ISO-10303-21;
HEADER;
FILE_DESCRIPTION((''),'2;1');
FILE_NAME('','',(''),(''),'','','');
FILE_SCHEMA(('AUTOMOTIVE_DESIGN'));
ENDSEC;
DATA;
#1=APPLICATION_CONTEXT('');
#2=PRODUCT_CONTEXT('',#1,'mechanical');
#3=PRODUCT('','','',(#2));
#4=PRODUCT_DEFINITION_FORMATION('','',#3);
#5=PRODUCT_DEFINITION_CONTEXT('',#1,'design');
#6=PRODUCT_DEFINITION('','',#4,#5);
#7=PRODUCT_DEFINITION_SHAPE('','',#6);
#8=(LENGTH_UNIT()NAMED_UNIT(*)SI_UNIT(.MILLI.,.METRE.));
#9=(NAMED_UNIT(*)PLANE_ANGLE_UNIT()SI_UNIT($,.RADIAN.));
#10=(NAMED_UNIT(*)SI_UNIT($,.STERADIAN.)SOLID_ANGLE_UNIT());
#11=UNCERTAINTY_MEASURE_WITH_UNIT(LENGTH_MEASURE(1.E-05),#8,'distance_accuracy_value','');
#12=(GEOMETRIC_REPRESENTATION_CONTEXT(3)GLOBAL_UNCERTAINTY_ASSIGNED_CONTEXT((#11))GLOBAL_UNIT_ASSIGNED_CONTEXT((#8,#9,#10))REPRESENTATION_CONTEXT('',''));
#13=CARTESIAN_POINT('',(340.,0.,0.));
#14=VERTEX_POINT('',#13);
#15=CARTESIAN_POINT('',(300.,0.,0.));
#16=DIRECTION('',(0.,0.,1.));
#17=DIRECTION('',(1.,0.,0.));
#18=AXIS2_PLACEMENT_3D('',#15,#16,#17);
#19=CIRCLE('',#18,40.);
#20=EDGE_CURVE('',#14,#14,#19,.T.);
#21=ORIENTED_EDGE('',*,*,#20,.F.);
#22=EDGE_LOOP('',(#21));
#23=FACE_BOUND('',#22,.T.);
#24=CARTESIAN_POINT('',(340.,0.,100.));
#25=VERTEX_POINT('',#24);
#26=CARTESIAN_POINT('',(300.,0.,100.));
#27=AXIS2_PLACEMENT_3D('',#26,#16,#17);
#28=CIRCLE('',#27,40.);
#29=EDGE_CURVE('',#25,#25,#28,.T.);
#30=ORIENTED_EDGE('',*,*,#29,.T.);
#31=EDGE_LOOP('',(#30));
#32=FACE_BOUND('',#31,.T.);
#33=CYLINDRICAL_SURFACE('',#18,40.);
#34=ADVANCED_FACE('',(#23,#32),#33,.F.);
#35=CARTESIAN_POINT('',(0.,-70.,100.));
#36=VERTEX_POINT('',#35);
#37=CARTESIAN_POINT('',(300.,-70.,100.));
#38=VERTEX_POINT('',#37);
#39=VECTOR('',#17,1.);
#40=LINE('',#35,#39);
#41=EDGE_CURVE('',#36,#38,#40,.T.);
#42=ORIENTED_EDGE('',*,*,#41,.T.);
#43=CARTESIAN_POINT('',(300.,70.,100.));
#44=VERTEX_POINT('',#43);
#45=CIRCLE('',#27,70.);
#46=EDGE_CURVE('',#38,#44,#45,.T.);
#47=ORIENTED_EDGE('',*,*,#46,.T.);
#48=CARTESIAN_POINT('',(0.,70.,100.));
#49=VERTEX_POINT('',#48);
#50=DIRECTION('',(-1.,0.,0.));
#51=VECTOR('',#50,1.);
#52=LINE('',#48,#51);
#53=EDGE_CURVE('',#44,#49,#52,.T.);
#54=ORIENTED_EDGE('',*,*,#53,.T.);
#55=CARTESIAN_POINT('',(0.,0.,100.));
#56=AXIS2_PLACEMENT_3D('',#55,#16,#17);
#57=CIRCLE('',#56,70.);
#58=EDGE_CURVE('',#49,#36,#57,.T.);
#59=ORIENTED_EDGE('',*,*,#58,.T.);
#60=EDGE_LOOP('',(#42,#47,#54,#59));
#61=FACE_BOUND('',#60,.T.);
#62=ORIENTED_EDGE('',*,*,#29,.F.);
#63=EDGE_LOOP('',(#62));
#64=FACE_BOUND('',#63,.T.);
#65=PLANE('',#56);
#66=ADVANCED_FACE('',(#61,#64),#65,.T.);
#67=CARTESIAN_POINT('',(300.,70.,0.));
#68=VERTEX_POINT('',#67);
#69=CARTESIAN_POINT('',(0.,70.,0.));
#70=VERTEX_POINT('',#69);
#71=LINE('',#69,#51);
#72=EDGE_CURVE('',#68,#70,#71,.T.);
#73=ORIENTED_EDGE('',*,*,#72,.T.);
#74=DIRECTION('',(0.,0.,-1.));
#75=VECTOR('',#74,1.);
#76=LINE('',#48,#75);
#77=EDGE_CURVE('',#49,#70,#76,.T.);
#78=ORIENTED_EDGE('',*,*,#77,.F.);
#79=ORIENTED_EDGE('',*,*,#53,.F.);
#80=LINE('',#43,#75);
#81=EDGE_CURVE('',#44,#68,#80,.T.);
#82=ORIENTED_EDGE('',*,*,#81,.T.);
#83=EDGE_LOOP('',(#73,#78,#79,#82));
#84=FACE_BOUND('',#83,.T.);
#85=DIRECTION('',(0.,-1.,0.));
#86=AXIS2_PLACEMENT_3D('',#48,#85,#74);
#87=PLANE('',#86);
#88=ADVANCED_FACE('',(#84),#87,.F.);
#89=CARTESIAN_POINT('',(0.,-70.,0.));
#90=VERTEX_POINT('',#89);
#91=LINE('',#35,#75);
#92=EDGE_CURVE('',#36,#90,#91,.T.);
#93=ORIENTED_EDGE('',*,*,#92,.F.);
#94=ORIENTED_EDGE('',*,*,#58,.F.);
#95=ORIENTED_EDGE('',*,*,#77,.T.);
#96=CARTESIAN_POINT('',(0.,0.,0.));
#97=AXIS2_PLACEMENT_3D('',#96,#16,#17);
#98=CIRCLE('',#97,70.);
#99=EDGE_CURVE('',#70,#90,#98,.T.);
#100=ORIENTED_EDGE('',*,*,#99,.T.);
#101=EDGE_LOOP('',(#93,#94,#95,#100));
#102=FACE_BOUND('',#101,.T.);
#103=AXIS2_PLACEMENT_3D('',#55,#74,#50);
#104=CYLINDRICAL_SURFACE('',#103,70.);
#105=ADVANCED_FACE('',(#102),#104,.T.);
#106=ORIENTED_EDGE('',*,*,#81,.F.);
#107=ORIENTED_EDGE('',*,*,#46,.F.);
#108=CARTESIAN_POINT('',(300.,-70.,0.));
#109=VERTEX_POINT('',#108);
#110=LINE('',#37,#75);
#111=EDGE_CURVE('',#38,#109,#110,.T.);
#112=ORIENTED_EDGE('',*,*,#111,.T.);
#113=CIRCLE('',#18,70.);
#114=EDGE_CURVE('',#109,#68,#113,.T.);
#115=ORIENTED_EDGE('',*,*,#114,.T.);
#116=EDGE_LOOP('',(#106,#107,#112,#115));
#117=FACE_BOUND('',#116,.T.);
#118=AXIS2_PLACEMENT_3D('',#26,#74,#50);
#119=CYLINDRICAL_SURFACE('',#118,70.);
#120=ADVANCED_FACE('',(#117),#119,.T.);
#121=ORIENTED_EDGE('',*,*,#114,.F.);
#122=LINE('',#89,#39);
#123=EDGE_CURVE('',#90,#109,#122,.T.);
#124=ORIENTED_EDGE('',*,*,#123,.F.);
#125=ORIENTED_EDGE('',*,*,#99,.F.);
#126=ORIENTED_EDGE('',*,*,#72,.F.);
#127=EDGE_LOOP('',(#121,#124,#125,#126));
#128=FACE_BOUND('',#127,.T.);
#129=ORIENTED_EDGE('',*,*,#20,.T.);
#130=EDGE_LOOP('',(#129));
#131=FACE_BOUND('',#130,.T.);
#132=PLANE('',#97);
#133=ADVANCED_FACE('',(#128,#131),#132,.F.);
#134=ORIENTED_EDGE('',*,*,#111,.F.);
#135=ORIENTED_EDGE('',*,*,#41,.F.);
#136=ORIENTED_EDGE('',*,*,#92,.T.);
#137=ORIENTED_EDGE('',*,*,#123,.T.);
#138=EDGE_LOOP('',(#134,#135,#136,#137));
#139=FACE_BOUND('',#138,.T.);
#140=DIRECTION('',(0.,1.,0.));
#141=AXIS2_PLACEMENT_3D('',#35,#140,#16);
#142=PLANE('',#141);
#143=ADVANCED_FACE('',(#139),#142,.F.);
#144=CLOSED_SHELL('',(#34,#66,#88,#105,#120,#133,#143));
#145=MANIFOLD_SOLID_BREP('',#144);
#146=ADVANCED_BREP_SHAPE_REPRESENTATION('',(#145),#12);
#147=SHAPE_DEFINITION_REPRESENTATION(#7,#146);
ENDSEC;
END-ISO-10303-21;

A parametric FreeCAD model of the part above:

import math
import FreeCAD as App
import Part
import Sketcher
Q = App.Units.Quantity

doc = App.newDocument("Part")
body = doc.addObject("PartDesign::Body", "Body")

# Sketch on XY plane
sketch1 = body.newObject("Sketcher::SketchObject", "Sketch")
sketch1.AttachmentSupport = (doc.getObject("XY_Plane"), [""])
sketch1.MapMode = "FlatFace"
sketch1.addGeometry(Part.LineSegment(App.Vector(300, 70, 0), App.Vector(0, 70, 0)), False)
sketch1.addGeometry(Part.ArcOfCircle(Part.Circle(App.Vector(0, 0, 0), App.Vector(0, 0, 1), 70), math.radians(90), math.radians(270)), False)
sketch1.addGeometry(Part.LineSegment(App.Vector(0, -70, 0), App.Vector(300, -70, 0)), False)
sketch1.addGeometry(Part.ArcOfCircle(Part.Circle(App.Vector(300, 0, 0), App.Vector(0, 0, 1), 70), math.radians(-90), math.radians(90)), False)
sketch1.addConstraint(Sketcher.Constraint("Tangent", 0, 2, 1, 1))
sketch1.addConstraint(Sketcher.Constraint("Tangent", 1, 2, 2, 1))
sketch1.addConstraint(Sketcher.Constraint("Tangent", 2, 2, 3, 1))
sketch1.addConstraint(Sketcher.Constraint("Tangent", 3, 2, 0, 1))
sketch1.addConstraint(Sketcher.Constraint("Horizontal", 0))
sketch1.addConstraint(Sketcher.Constraint("Horizontal", 2))
sketch1.addConstraint(Sketcher.Constraint("Coincident", 1, 3, -1, 1))
sketch1.addConstraint(Sketcher.Constraint("Radius", 1, Q("70 mm")))
sketch1.addConstraint(Sketcher.Constraint("DistanceX", 0, 2, 0, 1, Q("300 mm")))
pad1 = body.newObject("PartDesign::Pad", "Pad")
pad1.Profile = sketch1
pad1.Length = 100

# Sketch on XY plane
sketch2 = body.newObject("Sketcher::SketchObject", "Sketch001")
sketch2.AttachmentSupport = (doc.getObject("XY_Plane"), [""])
sketch2.MapMode = "FlatFace"
sketch2.AttachmentOffset = App.Placement(App.Vector(0, 0, 100), App.Rotation())
sketch2.addGeometry(Part.Circle(App.Vector(300, 0, 0), App.Vector(0, 0, 1), 40), False)
sketch2.addConstraint(Sketcher.Constraint("PointOnObject", 0, 3, -1))
sketch2.addConstraint(Sketcher.Constraint("Diameter", 0, Q("80 mm")))
sketch2.addConstraint(Sketcher.Constraint("DistanceX", -1, 1, 0, 3, Q("300 mm")))
pocket1 = body.newObject("PartDesign::Pocket", "Pocket")
pocket1.Profile = sketch2
pocket1.Type = "ThroughAll"

doc.recompute()
